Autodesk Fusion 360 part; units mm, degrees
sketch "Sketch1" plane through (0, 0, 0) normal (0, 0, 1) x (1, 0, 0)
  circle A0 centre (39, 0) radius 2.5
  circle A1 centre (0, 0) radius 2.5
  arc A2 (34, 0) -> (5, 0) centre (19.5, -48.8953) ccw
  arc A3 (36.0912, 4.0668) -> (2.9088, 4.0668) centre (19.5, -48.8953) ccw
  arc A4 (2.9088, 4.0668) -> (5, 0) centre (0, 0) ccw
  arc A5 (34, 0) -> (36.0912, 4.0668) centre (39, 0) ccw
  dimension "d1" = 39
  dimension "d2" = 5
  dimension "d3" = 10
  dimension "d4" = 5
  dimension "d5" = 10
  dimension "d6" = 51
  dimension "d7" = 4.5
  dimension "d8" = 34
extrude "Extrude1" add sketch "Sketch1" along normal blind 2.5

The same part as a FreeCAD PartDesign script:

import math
import FreeCAD as App
import Part
import Sketcher
Q = App.Units.Quantity

doc = App.newDocument("Part")
body = doc.addObject("PartDesign::Body", "Body")

# Sketch on XY plane
sketch1 = body.newObject("Sketcher::SketchObject", "Sketch")
sketch1.AttachmentSupport = (doc.getObject("XY_Plane"), [""])
sketch1.MapMode = "FlatFace"
sketch1.addGeometry(Part.ArcOfCircle(Part.Circle(App.Vector(19.5, -48.9, 0), App.Vector(0, 0, 1), 51), math.radians(73), math.radians(107)), False)
sketch1.addGeometry(Part.ArcOfCircle(Part.Circle(App.Vector(39, 0, 0), App.Vector(0, 0, 1), 5), math.radians(180), math.radians(486)), False)
sketch1.addGeometry(Part.ArcOfCircle(Part.Circle(App.Vector(19.5, -48.9, 0), App.Vector(0, 0, 1), 55.5), math.radians(73), math.radians(107)), False)
sketch1.addGeometry(Part.ArcOfCircle(Part.Circle(App.Vector(0, 0, 0), App.Vector(0, 0, 1), 5), math.radians(54), math.radians(360)), False)
sketch1.addGeometry(Part.Circle(App.Vector(0, 0, 0), App.Vector(0, 0, 1), 2.5), False)
sketch1.addGeometry(Part.Circle(App.Vector(39, 0, 0), App.Vector(0, 0, 1), 2.5), False)
sketch1.addConstraint(Sketcher.Constraint("Coincident", 0, 1, 1, 1))
sketch1.addConstraint(Sketcher.Constraint("Coincident", 1, 2, 2, 1))
sketch1.addConstraint(Sketcher.Constraint("Coincident", 2, 2, 3, 1))
sketch1.addConstraint(Sketcher.Constraint("Coincident", 3, 2, 0, 2))
sketch1.addConstraint(Sketcher.Constraint("Coincident", 3, 3, -1, 1))
sketch1.addConstraint(Sketcher.Constraint("Coincident", 4, 3, -1, 1))
sketch1.addConstraint(Sketcher.Constraint("Coincident", 2, 3, 0, 3))
sketch1.addConstraint(Sketcher.Constraint("Coincident", 5, 3, 1, 3))
sketch1.addConstraint(Sketcher.Constraint("Equal", 1, 3))
sketch1.addConstraint(Sketcher.Constraint("Equal", 4, 5))
sketch1.addConstraint(Sketcher.Constraint("PointOnObject", 1, 3, -1))
sketch1.addConstraint(Sketcher.Constraint("PointOnObject", 0, 1, -1))
sketch1.addConstraint(Sketcher.Constraint("PointOnObject", 3, 2, -1))
sketch1.addConstraint(Sketcher.Constraint("Diameter", 4, Q("5 mm")))
sketch1.addConstraint(Sketcher.Constraint("Radius", 0, Q("51 mm")))
sketch1.addConstraint(Sketcher.Constraint("Radius", 1, Q("5 mm")))
sketch1.addConstraint(Sketcher.Constraint("DistanceX", -1, 1, 1, 3, Q("39 mm")))
sketch1.addConstraint(Sketcher.Constraint("Radius", 2, Q("55.5 mm")))
pad1 = body.newObject("PartDesign::Pad", "Pad")
pad1.Profile = sketch1
pad1.Length = 2.5

doc.recompute()
